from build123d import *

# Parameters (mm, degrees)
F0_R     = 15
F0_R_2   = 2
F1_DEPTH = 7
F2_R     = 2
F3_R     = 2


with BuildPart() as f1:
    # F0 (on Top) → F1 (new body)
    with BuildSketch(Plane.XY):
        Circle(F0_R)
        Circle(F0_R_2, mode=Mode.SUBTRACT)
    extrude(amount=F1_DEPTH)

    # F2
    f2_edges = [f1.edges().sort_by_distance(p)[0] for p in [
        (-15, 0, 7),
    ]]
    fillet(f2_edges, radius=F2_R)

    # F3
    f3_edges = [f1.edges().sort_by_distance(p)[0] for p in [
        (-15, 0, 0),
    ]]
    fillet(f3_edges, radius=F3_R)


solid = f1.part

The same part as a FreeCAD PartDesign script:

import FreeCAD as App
import Part
import Sketcher
Q = App.Units.Quantity


def edges_at(feature, points):
    """Names of the edges that pass closest to the given points."""
    edges = feature.Shape.Edges
    near = lambda p: min(range(len(edges)), key=lambda i: edges[i].distToShape(Part.Vertex(*p))[0])
    return sorted({f"Edge{near(p) + 1}" for p in points})

doc = App.newDocument("Part")
body = doc.addObject("PartDesign::Body", "Body")

# Sketch on XY plane
sketch1 = body.newObject("Sketcher::SketchObject", "Sketch")
sketch1.AttachmentSupport = (doc.getObject("XY_Plane"), [""])
sketch1.MapMode = "FlatFace"
sketch1.addGeometry([
    Part.Circle(App.Vector(0, 0, 0), App.Vector(0, 0, 1), 15),
    Part.Circle(App.Vector(0, 0, 0), App.Vector(0, 0, 1), 2),
], False)
sketch1.addConstraint([
    Sketcher.Constraint("Coincident", 0, 3, -1, 1),
    Sketcher.Constraint("Coincident", 1, 3, -1, 1),
    Sketcher.Constraint("Diameter", 0, Q("30 mm")),
    Sketcher.Constraint("Diameter", 1, Q("4 mm")),
])
pad1 = body.newObject("PartDesign::Pad", "Pad")
pad1.Profile = sketch1
pad1.Length = 7
doc.recompute()

fillet = body.newObject("PartDesign::Fillet", "Fillet")
fillet.Base = (pad1, edges_at(pad1, [(-15, 0, 7)]))
fillet.Radius = 2
doc.recompute()

fillet2 = body.newObject("PartDesign::Fillet", "Fillet001")
fillet2.Base = (fillet, edges_at(fillet, [(-15, 0, 0)]))
fillet2.Radius = 2

doc.recompute()
